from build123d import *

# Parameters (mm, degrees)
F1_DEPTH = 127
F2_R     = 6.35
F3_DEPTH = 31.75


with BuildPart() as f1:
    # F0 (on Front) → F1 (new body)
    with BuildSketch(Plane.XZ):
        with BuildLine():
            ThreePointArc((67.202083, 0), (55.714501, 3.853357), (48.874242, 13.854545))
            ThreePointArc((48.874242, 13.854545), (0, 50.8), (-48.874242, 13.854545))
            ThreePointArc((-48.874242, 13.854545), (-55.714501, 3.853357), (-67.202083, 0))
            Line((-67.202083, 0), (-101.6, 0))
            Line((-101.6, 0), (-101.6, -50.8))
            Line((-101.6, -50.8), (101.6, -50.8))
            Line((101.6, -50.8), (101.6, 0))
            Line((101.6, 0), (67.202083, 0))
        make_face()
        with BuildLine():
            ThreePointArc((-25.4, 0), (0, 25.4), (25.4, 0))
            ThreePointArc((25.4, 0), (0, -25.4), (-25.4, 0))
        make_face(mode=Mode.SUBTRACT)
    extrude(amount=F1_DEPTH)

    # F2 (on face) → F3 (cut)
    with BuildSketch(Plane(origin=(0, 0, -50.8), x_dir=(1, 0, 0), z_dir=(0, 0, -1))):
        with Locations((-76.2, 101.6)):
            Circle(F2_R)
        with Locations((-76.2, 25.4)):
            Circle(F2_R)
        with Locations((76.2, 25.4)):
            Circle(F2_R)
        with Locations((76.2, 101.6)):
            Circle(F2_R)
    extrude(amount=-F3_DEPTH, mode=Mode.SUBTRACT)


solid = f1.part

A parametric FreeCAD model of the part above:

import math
import FreeCAD as App
import Part
import Sketcher
Q = App.Units.Quantity

doc = App.newDocument("Part")
body = doc.addObject("PartDesign::Body", "Body")

# Sketch on XZ plane
sketch1 = doc.addObject("Sketcher::SketchObject", "Sketch")
body.addObject(sketch1)
sketch1.AttachmentSupport = (doc.XZ_Plane, [""])
sketch1.MapMode = "FlatFace"
sketch1.addGeometry(Part.ArcOfCircle(Part.Circle(App.Vector(67, 19, 0), App.Vector(0, 0, 1), 19), math.radians(-164), math.radians(-90)), False)
sketch1.addGeometry(Part.ArcOfCircle(Part.Circle(App.Vector(0, 0, 0), App.Vector(0, 0, 1), 51), math.radians(16), math.radians(164)), False)
sketch1.addGeometry(Part.ArcOfCircle(Part.Circle(App.Vector(-67, 19, 0), App.Vector(0, 0, 1), 19), math.radians(-90), math.radians(-16)), False)
sketch1.addGeometry(Part.LineSegment(App.Vector(-67, 0, 0), App.Vector(-102, 0, 0)), False)
sketch1.addGeometry(Part.LineSegment(App.Vector(-102, 0, 0), App.Vector(-102, -51, 0)), False)
sketch1.addGeometry(Part.LineSegment(App.Vector(-102, -51, 0), App.Vector(102, -51, 0)), False)
sketch1.addGeometry(Part.LineSegment(App.Vector(102, -51, 0), App.Vector(102, 0, 0)), False)
sketch1.addGeometry(Part.LineSegment(App.Vector(102, 0, 0), App.Vector(67, 0, 0)), False)
sketch1.addGeometry(Part.Circle(App.Vector(0, 0, 0), App.Vector(0, 0, 1), 25), False)
sketch1.addConstraint(Sketcher.Constraint("Tangent", 0, 1, 1, 1))
sketch1.addConstraint(Sketcher.Constraint("Tangent", 1, 2, 2, 2))
sketch1.addConstraint(Sketcher.Constraint("Tangent", 2, 1, 3, 1))
sketch1.addConstraint(Sketcher.Constraint("Coincident", 3, 2, 4, 1))
sketch1.addConstraint(Sketcher.Constraint("Coincident", 4, 2, 5, 1))
sketch1.addConstraint(Sketcher.Constraint("Coincident", 5, 2, 6, 1))
sketch1.addConstraint(Sketcher.Constraint("Coincident", 6, 2, 7, 1))
sketch1.addConstraint(Sketcher.Constraint("Tangent", 7, 2, 0, 2))
sketch1.addConstraint(Sketcher.Constraint("Horizontal", 3))
sketch1.addConstraint(Sketcher.Constraint("Vertical", 4))
sketch1.addConstraint(Sketcher.Constraint("Horizontal", 5))
sketch1.addConstraint(Sketcher.Constraint("Vertical", 6))
sketch1.addConstraint(Sketcher.Constraint("Horizontal", 7))
sketch1.addConstraint(Sketcher.Constraint("Coincident", 1, 3, -1, 1))
sketch1.addConstraint(Sketcher.Constraint("Coincident", 8, 3, -1, 1))
sketch1.addConstraint(Sketcher.Constraint("Equal", 0, 2))
sketch1.addConstraint(Sketcher.Constraint("Symmetric", 3, 2, 6, 2, -1, 1))
sketch1.addConstraint(Sketcher.Constraint("PointOnObject", 2, 1, -1))
sketch1.addConstraint(Sketcher.Constraint("Diameter", 8, Q("2 in")))
sketch1.addConstraint(Sketcher.Constraint("Radius", 1, Q("2 in")))
sketch1.addConstraint(Sketcher.Constraint("DistanceX", 5, 1, 5, 2, Q("8 in")))
sketch1.addConstraint(Sketcher.Constraint("DistanceY", 4, 2, 4, 1, Q("2 in")))
sketch1.addConstraint(Sketcher.Constraint("Radius", 0, Q("0.75 in")))
pad1 = doc.addObject("PartDesign::Pad", "Pad")
body.addObject(pad1)
pad1.Profile = sketch1
pad1.Length = Q("5 in")

# Sketch on XY plane
sketch2 = doc.addObject("Sketcher::SketchObject", "Sketch001")
body.addObject(sketch2)
sketch2.AttachmentSupport = (doc.XY_Plane, [""])
sketch2.MapMode = "FlatFace"
sketch2.AttachmentOffset = App.Placement(App.Vector(0, 0, -2 * 25.4), App.Rotation())
sketch2.addGeometry(Part.Circle(App.Vector(-76, -102, 0), App.Vector(0, 0, 1), 6), False)
sketch2.addGeometry(Part.Circle(App.Vector(-76, -25, 0), App.Vector(0, 0, 1), 6), False)
sketch2.addGeometry(Part.Circle(App.Vector(76, -25, 0), App.Vector(0, 0, 1), 6), False)
sketch2.addGeometry(Part.Circle(App.Vector(76, -102, 0), App.Vector(0, 0, 1), 6), False)
sketch2.addConstraint(Sketcher.Constraint("Equal", 0, 1))
sketch2.addConstraint(Sketcher.Constraint("Equal", 1, 2))
sketch2.addConstraint(Sketcher.Constraint("Equal", 2, 3))
sketch2.addConstraint(Sketcher.Constraint("Symmetric", 1, 3, 2, 3, -2))
sketch2.addConstraint(Sketcher.Constraint("Symmetric", 0, 3, 3, 3, -2))
sketch2.addConstraint(Sketcher.Constraint("Vertical", 0, 3, 1, 3))
sketch2.addConstraint(Sketcher.Constraint("Diameter", 0, Q("0.5 in")))
sketch2.addConstraint(Sketcher.Constraint("DistanceX", 0, 3, -1, 1, Q("3 in")))
sketch2.addConstraint(Sketcher.Constraint("DistanceY", 0, 3, -1, 1, Q("4 in")))
sketch2.addConstraint(Sketcher.Constraint("DistanceY", 1, 3, -1, 1, Q("1 in")))
pocket1 = doc.addObject("PartDesign::Pocket", "Pocket")
body.addObject(pocket1)
pocket1.Profile = sketch2
pocket1.Length = Q("1.25 in")
pocket1.Reversed = True

doc.recompute()
